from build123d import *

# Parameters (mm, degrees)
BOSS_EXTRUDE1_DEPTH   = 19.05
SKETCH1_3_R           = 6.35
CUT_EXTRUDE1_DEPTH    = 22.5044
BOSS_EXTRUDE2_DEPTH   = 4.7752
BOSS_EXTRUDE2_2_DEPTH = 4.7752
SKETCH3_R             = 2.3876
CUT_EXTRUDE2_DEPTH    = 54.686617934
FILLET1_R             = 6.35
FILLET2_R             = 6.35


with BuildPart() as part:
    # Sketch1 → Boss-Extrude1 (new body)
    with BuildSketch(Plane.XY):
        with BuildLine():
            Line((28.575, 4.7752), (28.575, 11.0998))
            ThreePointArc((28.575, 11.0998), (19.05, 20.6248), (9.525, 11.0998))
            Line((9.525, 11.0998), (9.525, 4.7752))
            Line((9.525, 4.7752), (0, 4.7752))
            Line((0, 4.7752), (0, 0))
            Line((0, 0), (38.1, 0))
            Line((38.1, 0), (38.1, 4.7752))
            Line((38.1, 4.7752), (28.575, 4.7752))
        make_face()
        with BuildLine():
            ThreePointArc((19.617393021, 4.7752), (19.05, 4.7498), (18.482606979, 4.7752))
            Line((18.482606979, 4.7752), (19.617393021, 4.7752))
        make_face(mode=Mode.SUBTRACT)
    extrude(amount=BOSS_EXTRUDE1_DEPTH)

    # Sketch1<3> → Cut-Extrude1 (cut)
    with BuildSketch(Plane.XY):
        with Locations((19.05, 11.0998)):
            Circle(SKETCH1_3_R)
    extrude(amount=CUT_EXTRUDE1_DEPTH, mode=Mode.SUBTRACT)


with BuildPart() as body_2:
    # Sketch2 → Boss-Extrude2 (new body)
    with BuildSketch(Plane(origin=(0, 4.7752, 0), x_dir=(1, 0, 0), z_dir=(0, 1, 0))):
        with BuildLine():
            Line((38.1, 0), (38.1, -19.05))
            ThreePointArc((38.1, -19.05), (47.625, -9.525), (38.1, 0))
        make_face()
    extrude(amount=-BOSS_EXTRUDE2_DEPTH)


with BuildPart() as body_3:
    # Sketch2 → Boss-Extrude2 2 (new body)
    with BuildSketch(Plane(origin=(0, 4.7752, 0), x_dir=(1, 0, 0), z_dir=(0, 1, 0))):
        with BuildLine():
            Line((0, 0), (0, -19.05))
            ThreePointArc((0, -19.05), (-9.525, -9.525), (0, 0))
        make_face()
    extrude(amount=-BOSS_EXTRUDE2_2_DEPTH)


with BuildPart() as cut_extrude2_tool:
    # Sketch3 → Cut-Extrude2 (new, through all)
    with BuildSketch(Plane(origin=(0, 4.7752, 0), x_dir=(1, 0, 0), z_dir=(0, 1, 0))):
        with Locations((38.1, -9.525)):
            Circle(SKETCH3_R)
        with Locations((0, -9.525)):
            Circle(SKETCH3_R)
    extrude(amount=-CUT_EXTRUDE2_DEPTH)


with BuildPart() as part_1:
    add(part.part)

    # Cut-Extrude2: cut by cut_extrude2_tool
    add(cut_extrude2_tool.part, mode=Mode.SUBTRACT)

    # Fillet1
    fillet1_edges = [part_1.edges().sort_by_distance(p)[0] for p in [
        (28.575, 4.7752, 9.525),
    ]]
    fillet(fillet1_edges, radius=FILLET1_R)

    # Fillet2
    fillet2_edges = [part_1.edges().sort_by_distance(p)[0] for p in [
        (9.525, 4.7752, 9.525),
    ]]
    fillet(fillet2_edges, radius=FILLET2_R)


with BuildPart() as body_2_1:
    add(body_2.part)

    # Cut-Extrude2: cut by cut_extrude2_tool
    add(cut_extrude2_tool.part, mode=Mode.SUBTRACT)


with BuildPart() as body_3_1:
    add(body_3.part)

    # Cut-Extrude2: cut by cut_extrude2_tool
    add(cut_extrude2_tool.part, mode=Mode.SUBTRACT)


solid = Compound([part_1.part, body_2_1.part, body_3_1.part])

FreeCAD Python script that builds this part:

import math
import FreeCAD as App
import Part
import Sketcher

V = App.Vector
Q = App.Units.Quantity


def edges_at(feature, points):
    """Names of the edges that pass closest to the given points."""
    edges = feature.Shape.Edges
    near = lambda p: min(range(len(edges)), key=lambda i: edges[i].distToShape(Part.Vertex(*p))[0])
    return sorted({f"Edge{near(p) + 1}" for p in points})

doc = App.newDocument("Part")
body = doc.addObject("PartDesign::Body", "Body")

sketch1 = body.newObject("Sketcher::SketchObject", "Sketch")
sketch1.AttachmentSupport = (doc.getObject("XY_Plane"), [""])
sketch1.MapMode = "FlatFace"
sketch1.addGeometry([
    Part.LineSegment(V(28.6, 4.8, 0), V(28.6, 11.1, 0)),
    Part.ArcOfCircle(Part.Circle(V(19.1, 11.1, 0), V(0, 0, 1), 9.5), math.radians(0), math.radians(180)),
    Part.LineSegment(V(9.5, 11.1, 0), V(9.5, 4.8, 0)),
    Part.LineSegment(V(9.5, 4.8, 0), V(0, 4.8, 0)),
    Part.LineSegment(V(0, 4.8, 0), V(0, 0, 0)),
    Part.LineSegment(V(0, 0, 0), V(38.1, 0, 0)),
    Part.LineSegment(V(38.1, 0, 0), V(38.1, 4.8, 0)),
    Part.LineSegment(V(38.1, 4.8, 0), V(28.6, 4.8, 0)),
    Part.LineSegment(V(18.5, 4.8, 0), V(19.6, 4.8, 0)),
    Part.ArcOfCircle(Part.Circle(V(19.1, 11.1, 0), V(0, 0, 1), 6.4), math.radians(-95.13), math.radians(-84.87)),
], False)
sketch1.addConstraint([
    Sketcher.Constraint("Tangent", 0, 2, 1, 1),
    Sketcher.Constraint("Tangent", 1, 2, 2, 1),
    Sketcher.Constraint("Coincident", 2, 2, 3, 1),
    Sketcher.Constraint("Coincident", 3, 2, 4, 1),
    Sketcher.Constraint("Coincident", 4, 2, 5, 1),
    Sketcher.Constraint("Coincident", 5, 2, 6, 1),
    Sketcher.Constraint("Coincident", 6, 2, 7, 1),
    Sketcher.Constraint("Coincident", 7, 2, 0, 1),
    Sketcher.Constraint("Coincident", 8, 1, 9, 1),
    Sketcher.Constraint("Coincident", 9, 2, 8, 2),
    Sketcher.Constraint("Vertical", 0),
    Sketcher.Constraint("Vertical", 2),
    Sketcher.Constraint("Horizontal", 3),
    Sketcher.Constraint("Vertical", 4),
    Sketcher.Constraint("Horizontal", 5),
    Sketcher.Constraint("Vertical", 6),
    Sketcher.Constraint("Horizontal", 7),
    Sketcher.Constraint("Horizontal", 8),
    Sketcher.Constraint("Coincident", 4, 2, -1, 1),
    Sketcher.Constraint("Coincident", 9, 3, 1, 3),
    Sketcher.Constraint("Horizontal", 3, 2, 6, 2),
    Sketcher.Constraint("Horizontal", 7, 2, 8, 1),
    Sketcher.Constraint("Equal", 3, 7),
    Sketcher.Constraint("Radius", 9, Q("0.25 in")),
    Sketcher.Constraint("DistanceX", 5, 1, 5, 2, Q("1.5 in")),
    Sketcher.Constraint("Radius", 1, Q("0.375 in")),
    Sketcher.Constraint("DistanceY", 0, 1, 0, 2, Q("0.249 in")),
    Sketcher.Constraint("DistanceY", 4, 2, 4, 1, Q("0.188 in")),
])
pad1 = body.newObject("PartDesign::Pad", "Pad")
pad1.Profile = sketch1
pad1.Length = Q("0.75 in")

sketch2 = body.newObject("Sketcher::SketchObject", "Sketch001")
sketch2.AttachmentSupport = (doc.getObject("XY_Plane"), [""])
sketch2.MapMode = "FlatFace"
sketch2.addGeometry(Part.Circle(V(19, 11, 0), V(0, 0, 1), 6), False)
sketch2.addConstraint([
    Sketcher.Constraint("Diameter", 0, Q("0.5 in")),
    Sketcher.Constraint("DistanceX", -1, 1, 0, 3, Q("0.75 in")),
    Sketcher.Constraint("DistanceY", -1, 1, 0, 3, Q("0.437 in")),
])
pocket1 = body.newObject("PartDesign::Pocket", "Pocket")
pocket1.Profile = sketch2
pocket1.Length = Q("0.886 in")
pocket1.Reversed = True
body2 = doc.addObject("PartDesign::Body", "Body001")

sketch3 = body2.newObject("Sketcher::SketchObject", "Sketch002")
sketch3.AttachmentSupport = (doc.getObject("XZ_Plane001"), [""])
sketch3.MapMode = "FlatFace"
sketch3.AttachmentOffset = App.Placement(V(0, 0, -0.188 * 25.4), App.Rotation())
sketch3.addGeometry([
    Part.LineSegment(V(38, 0, 0), V(38, 19, 0)),
    Part.ArcOfCircle(Part.Circle(V(38, 10, 0), V(0, 0, 1), 10), math.radians(-90), math.radians(90)),
], False)
sketch3.addConstraint([
    Sketcher.Constraint("Coincident", 0, 1, 1, 1),
    Sketcher.Constraint("Coincident", 1, 2, 0, 2),
    Sketcher.Constraint("Vertical", 0),
    Sketcher.Constraint("PointOnObject", 0, 1, -1),
    Sketcher.Constraint("Vertical", 1, 3, 0, 1),
    Sketcher.Constraint("Radius", 1, Q("0.375 in")),
    Sketcher.Constraint("DistanceX", -1, 1, 1, 3, Q("1.5 in")),
])
pad2 = body2.newObject("PartDesign::Pad", "Pad001")
pad2.Profile = sketch3
pad2.Length = Q("0.188 in")
body3 = doc.addObject("PartDesign::Body", "Body002")

sketch4 = body3.newObject("Sketcher::SketchObject", "Sketch003")
sketch4.AttachmentSupport = (doc.getObject("XZ_Plane002"), [""])
sketch4.MapMode = "FlatFace"
sketch4.AttachmentOffset = App.Placement(V(0, 0, -0.188 * 25.4), App.Rotation())
sketch4.addGeometry([
    Part.LineSegment(V(0, 19, 0), V(0, 0, 0)),
    Part.ArcOfCircle(Part.Circle(V(0, 10, 0), V(0, 0, 1), 10), math.radians(90), math.radians(270)),
], False)
sketch4.addConstraint([
    Sketcher.Constraint("Coincident", 0, 1, 1, 1),
    Sketcher.Constraint("Coincident", 1, 2, 0, 2),
    Sketcher.Constraint("Vertical", 0),
    Sketcher.Constraint("Coincident", 1, 2, -1, 1),
    Sketcher.Constraint("PointOnObject", 1, 3, -2),
    Sketcher.Constraint("Radius", 1, Q("0.375 in")),
])
pad3 = body3.newObject("PartDesign::Pad", "Pad002")
pad3.Profile = sketch4
pad3.Length = Q("0.188 in")
body4 = doc.addObject("PartDesign::Body", "Body003")
body4.AllowCompound = True

sketch5 = body4.newObject("Sketcher::SketchObject", "Sketch004")
sketch5.AttachmentSupport = (doc.getObject("XZ_Plane003"), [""])
sketch5.MapMode = "FlatFace"
sketch5.AttachmentOffset = App.Placement(V(0, 0, -0.188 * 25.4), App.Rotation())
sketch5.addGeometry([
    Part.Circle(V(38.1, 9.5, 0), V(0, 0, 1), 2.4),
    Part.Circle(V(0, 9.5, 0), V(0, 0, 1), 2.4),
], False)
sketch5.addConstraint([
    Sketcher.Constraint("Equal", 0, 1),
    Sketcher.Constraint("PointOnObject", 1, 3, -2),
    Sketcher.Constraint("Horizontal", 0, 3, 1, 3),
    Sketcher.Constraint("Diameter", 0, Q("0.188 in")),
    Sketcher.Constraint("DistanceX", -1, 1, 0, 3, Q("1.5 in")),
    Sketcher.Constraint("DistanceY", -1, 1, 0, 3, Q("0.375 in")),
])
pad4 = body4.newObject("PartDesign::Pad", "Pad003")
pad4.Profile = sketch5
pad4.Length = 54.686618
doc.recompute()

body5 = doc.addObject("PartDesign::Body", "Body004")
body5.BaseFeature = body4
boolean = body.newObject("PartDesign::Boolean", "Boolean")
boolean.Type = "Cut"
boolean.addObjects([body5])
doc.recompute()

fillet = body.newObject("PartDesign::Fillet", "Fillet")
fillet.Base = (boolean, edges_at(boolean, [(28.575, 4.775, 9.525)]))
fillet.Radius = Q("0.25 in")
doc.recompute()

fillet2 = body.newObject("PartDesign::Fillet", "Fillet001")
fillet2.Base = (fillet, edges_at(fillet, [(9.525, 4.775, 9.525)]))
fillet2.Radius = Q("0.25 in")
doc.recompute()

body6 = doc.addObject("PartDesign::Body", "Body005")
body6.BaseFeature = body4
boolean2 = body2.newObject("PartDesign::Boolean", "Boolean001")
boolean2.Type = "Cut"
boolean2.addObjects([body6])
doc.recompute()

boolean3 = body3.newObject("PartDesign::Boolean", "Boolean002")
boolean3.Type = "Cut"
boolean3.addObjects([body4])

doc.recompute()
